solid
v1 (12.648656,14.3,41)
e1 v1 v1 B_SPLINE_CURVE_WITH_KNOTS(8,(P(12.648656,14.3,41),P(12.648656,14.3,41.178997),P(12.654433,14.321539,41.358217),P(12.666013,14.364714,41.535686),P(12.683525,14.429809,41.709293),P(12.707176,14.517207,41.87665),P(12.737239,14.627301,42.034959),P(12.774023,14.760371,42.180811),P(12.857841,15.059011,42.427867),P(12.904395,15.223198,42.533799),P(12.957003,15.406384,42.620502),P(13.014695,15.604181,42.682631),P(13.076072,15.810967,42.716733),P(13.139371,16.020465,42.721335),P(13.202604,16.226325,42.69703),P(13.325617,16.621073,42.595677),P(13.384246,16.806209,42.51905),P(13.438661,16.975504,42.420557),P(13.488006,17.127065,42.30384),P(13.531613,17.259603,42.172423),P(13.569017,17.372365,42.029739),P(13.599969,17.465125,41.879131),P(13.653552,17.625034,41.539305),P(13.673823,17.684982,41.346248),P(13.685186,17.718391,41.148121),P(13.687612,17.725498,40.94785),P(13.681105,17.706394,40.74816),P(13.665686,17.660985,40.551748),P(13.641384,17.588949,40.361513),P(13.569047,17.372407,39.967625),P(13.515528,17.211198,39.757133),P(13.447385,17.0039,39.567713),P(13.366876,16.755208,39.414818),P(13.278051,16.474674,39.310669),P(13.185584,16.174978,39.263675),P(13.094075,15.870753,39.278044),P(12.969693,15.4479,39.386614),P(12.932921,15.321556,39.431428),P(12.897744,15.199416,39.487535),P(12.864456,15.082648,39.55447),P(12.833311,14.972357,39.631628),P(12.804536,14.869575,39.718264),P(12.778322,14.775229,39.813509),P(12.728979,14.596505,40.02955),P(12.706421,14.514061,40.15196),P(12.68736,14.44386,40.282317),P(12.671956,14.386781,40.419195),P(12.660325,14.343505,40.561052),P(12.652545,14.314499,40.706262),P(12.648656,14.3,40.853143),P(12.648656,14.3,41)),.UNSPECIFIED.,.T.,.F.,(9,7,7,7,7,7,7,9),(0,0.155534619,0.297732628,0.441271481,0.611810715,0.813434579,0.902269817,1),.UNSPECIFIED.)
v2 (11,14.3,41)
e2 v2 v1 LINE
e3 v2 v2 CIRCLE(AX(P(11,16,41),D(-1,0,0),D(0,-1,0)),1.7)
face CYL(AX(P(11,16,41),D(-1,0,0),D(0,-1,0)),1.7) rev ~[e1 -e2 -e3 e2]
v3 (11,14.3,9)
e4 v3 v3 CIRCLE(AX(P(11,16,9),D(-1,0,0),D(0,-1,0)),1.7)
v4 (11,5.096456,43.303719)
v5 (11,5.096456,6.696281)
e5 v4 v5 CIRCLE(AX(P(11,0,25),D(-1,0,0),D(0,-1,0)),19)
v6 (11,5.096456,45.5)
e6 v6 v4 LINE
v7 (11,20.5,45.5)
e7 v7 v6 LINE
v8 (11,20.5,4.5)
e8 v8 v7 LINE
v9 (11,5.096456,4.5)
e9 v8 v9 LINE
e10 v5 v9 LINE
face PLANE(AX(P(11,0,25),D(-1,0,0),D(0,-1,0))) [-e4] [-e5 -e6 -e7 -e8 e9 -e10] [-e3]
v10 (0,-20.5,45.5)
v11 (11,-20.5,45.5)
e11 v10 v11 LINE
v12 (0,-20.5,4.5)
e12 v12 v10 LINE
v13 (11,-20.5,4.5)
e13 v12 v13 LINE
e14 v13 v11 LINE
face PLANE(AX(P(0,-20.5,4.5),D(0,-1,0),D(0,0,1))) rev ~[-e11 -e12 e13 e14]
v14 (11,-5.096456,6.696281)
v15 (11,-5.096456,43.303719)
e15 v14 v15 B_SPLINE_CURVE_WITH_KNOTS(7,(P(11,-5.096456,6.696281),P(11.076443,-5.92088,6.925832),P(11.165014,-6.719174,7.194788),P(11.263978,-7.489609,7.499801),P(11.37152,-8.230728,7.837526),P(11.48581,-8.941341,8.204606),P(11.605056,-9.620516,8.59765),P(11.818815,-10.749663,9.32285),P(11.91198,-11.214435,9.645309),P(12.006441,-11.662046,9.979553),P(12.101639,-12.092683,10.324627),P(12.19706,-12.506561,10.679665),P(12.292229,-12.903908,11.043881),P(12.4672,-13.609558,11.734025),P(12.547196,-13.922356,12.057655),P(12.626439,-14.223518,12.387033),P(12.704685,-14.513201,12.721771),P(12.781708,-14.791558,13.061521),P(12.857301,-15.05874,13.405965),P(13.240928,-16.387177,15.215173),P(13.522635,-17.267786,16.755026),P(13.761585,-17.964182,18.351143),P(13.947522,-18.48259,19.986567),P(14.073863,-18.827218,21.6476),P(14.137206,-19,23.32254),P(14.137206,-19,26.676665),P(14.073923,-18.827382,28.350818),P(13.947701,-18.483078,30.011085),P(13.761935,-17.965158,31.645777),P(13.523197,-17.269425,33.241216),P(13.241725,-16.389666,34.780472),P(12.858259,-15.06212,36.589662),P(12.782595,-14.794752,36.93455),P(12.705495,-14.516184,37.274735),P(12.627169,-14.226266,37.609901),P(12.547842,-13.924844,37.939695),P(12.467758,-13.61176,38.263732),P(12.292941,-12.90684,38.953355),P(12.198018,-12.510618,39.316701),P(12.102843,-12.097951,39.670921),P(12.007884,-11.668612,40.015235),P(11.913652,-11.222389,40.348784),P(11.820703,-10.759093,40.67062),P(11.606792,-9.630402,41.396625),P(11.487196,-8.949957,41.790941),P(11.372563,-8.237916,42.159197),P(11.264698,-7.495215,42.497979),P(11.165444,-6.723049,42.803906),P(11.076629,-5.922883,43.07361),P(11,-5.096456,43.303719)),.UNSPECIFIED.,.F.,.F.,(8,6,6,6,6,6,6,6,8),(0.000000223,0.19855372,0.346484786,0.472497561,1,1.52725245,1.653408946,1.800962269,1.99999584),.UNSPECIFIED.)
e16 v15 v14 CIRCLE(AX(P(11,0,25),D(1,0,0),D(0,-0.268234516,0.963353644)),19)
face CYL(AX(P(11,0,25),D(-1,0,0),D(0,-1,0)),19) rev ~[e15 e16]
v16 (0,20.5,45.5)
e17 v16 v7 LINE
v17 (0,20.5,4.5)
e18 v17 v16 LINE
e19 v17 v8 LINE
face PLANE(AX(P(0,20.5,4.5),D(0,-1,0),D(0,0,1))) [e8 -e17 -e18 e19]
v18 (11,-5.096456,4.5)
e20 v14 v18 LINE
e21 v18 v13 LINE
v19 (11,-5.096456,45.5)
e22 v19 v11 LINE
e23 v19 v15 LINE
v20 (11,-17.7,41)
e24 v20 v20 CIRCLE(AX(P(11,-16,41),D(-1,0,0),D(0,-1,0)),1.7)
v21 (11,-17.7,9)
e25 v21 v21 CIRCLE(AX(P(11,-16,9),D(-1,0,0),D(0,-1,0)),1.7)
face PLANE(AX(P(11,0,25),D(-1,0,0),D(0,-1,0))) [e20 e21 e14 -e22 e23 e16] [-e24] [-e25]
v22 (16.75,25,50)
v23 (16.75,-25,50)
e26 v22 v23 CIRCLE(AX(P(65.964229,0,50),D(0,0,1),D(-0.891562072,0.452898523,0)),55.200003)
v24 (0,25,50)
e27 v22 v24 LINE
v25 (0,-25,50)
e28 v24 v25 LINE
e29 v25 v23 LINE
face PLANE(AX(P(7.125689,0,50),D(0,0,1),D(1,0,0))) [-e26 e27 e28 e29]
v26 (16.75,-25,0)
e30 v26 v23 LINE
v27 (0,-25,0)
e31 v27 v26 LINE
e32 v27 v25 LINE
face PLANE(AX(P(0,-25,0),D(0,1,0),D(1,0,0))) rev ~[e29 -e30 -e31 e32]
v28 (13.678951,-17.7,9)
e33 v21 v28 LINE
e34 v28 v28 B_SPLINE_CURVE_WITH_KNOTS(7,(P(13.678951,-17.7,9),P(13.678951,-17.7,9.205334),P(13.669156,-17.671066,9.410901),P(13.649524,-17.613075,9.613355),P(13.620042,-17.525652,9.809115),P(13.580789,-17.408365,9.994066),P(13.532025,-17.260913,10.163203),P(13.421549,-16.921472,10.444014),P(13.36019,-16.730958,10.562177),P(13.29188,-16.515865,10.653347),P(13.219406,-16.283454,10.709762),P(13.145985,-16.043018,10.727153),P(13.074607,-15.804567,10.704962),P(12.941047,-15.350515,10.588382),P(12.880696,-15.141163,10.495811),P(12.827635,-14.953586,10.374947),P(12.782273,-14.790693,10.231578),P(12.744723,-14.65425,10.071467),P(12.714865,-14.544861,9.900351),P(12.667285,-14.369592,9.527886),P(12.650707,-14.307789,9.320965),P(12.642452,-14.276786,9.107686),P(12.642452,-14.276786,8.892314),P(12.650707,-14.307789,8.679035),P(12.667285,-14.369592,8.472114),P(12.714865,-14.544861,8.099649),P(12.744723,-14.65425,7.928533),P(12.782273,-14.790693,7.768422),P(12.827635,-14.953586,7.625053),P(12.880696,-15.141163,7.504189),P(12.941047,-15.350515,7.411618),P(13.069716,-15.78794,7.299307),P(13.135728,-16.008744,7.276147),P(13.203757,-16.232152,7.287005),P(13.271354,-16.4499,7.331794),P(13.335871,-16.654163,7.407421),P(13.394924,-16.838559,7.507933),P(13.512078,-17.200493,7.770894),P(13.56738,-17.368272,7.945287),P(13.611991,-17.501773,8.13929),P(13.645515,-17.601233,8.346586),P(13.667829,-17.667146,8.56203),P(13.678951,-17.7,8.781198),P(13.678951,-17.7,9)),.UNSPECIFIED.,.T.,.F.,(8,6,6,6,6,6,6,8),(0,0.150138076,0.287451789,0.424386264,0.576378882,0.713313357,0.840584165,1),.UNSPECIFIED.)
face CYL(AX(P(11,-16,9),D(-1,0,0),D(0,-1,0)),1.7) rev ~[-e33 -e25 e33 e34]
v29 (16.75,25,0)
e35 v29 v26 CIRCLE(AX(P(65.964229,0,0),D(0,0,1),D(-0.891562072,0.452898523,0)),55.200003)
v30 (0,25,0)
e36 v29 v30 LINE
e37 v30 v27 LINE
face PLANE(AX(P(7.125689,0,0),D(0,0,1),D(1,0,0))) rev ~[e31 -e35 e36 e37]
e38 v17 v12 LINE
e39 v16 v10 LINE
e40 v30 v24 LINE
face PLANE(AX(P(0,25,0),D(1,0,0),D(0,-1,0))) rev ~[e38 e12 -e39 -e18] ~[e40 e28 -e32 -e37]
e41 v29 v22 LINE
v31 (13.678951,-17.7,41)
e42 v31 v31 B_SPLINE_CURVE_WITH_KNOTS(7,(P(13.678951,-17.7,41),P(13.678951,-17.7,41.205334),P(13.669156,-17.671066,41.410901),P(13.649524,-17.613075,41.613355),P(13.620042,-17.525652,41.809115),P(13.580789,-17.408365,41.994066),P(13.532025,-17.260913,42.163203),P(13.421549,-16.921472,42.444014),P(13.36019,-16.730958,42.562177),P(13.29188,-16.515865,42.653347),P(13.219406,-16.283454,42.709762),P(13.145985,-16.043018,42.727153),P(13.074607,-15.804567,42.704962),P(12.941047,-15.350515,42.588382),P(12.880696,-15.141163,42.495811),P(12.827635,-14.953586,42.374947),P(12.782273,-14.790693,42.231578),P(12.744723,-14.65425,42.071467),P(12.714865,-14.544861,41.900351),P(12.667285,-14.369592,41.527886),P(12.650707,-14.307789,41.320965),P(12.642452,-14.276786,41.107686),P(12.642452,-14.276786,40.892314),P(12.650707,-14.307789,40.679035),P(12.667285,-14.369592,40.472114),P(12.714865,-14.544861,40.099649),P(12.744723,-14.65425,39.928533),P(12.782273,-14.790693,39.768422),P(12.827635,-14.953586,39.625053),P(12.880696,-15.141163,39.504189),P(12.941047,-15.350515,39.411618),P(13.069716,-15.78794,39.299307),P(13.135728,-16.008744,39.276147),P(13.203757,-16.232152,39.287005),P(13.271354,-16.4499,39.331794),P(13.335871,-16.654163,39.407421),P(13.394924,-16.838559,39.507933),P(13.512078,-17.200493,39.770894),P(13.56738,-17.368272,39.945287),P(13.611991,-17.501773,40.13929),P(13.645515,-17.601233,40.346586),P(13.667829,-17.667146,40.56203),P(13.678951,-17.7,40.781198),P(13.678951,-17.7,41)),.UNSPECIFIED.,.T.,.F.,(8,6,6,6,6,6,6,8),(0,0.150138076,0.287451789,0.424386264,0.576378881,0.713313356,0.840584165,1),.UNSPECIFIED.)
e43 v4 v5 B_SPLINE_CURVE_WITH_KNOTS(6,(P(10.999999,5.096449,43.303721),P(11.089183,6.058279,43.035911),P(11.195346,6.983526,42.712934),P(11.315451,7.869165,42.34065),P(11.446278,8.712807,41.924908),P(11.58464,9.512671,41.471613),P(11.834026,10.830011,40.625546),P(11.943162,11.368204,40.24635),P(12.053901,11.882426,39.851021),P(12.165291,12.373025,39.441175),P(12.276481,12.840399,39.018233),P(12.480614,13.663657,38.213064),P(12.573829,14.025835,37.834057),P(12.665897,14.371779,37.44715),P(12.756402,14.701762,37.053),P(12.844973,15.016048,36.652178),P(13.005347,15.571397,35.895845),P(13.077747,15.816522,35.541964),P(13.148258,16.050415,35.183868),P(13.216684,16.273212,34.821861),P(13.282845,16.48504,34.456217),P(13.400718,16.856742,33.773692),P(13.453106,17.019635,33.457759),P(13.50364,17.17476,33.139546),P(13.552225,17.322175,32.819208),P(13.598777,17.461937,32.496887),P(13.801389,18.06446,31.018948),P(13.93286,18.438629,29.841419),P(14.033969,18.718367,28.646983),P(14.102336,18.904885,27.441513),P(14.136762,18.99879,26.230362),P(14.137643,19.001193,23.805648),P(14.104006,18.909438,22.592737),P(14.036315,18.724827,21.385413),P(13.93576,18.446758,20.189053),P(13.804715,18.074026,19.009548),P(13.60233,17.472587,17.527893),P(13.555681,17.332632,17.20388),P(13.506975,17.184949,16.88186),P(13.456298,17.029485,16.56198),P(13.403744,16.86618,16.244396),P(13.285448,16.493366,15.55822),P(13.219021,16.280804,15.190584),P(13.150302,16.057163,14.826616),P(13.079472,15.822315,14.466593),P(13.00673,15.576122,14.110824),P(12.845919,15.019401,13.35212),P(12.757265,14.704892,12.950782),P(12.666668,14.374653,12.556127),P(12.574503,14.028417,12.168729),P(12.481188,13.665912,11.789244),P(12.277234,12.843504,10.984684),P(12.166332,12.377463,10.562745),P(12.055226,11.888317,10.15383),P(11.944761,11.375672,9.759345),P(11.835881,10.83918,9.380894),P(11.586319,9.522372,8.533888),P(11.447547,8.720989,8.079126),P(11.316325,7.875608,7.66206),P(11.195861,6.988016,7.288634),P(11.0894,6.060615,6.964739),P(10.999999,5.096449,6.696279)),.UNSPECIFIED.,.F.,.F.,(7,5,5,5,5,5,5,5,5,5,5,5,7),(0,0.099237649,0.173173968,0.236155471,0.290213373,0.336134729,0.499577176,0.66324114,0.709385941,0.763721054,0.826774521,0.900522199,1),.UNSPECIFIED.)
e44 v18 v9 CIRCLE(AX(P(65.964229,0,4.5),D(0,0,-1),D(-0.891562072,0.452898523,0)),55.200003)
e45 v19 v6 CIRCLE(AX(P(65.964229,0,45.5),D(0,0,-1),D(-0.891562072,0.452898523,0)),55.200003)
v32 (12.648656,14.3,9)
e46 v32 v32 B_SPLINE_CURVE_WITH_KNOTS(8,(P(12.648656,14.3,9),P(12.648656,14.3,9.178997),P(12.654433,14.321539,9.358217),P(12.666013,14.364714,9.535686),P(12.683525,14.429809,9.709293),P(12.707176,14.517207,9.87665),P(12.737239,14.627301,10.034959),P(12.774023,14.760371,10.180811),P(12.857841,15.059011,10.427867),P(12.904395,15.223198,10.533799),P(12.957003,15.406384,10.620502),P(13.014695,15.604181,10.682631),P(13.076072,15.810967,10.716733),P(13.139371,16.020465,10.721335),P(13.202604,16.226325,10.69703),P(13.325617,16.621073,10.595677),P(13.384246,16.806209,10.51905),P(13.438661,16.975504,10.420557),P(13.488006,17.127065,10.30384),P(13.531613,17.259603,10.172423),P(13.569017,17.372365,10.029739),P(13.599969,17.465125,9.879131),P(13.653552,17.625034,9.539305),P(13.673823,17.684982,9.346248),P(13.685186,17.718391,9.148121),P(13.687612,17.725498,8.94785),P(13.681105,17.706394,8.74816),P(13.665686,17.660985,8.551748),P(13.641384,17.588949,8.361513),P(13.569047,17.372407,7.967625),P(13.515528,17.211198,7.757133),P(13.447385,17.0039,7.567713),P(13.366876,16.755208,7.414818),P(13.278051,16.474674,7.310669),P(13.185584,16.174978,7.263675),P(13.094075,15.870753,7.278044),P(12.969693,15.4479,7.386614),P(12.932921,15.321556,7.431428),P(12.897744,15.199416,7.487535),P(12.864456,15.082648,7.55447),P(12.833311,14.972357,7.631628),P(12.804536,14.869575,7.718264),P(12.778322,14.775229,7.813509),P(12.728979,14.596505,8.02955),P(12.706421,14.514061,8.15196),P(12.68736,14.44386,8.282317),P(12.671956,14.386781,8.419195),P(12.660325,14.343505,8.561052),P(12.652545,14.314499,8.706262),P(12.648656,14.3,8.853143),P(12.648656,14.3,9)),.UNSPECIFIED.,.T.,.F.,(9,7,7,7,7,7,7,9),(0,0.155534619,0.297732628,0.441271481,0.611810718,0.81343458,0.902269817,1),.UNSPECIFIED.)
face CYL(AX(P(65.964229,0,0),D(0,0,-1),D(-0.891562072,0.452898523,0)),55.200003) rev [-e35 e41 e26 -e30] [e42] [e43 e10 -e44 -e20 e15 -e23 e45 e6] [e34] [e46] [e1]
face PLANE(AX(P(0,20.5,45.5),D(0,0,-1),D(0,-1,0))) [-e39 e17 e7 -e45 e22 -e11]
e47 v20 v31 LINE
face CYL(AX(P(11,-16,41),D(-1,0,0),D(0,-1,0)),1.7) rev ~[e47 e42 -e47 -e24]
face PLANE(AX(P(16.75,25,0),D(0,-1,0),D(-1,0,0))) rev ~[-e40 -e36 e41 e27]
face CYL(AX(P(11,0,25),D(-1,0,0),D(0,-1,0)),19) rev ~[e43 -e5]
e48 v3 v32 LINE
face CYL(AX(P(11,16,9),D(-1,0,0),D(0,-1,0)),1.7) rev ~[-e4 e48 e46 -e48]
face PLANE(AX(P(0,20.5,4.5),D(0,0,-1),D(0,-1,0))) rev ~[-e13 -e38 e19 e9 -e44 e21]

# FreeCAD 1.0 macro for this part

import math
import FreeCAD as App
import Part
import Sketcher

doc = App.newDocument("Part")
body = doc.addObject("PartDesign::Body", "Body")

# Sketch on XY plane
sketch1 = body.newObject("Sketcher::SketchObject", "Sketch")
sketch1.AttachmentSupport = (doc.getObject("XY_Plane"), [""])
sketch1.MapMode = "FlatFace"
sketch1.addGeometry([
    Part.LineSegment(App.Vector(17, 25, 0), App.Vector(0, 25, 0)),
    Part.LineSegment(App.Vector(0, 25, 0), App.Vector(0, -25, 0)),
    Part.LineSegment(App.Vector(0, -25, 0), App.Vector(17, -25, 0)),
    Part.ArcOfCircle(Part.Circle(App.Vector(66, 0, 0), App.Vector(0, 0, 1), 55), math.radians(153), math.radians(207)),
], False)
sketch1.addConstraint([
    Sketcher.Constraint("Coincident", 0, 2, 1, 1),
    Sketcher.Constraint("Coincident", 1, 2, 2, 1),
    Sketcher.Constraint("Coincident", 2, 2, 3, 2),
    Sketcher.Constraint("Coincident", 3, 1, 0, 1),
    Sketcher.Constraint("Horizontal", 0),
    Sketcher.Constraint("Vertical", 1),
    Sketcher.Constraint("Horizontal", 2),
    Sketcher.Constraint("Symmetric", 0, 2, 1, 2, -1, 1),
    Sketcher.Constraint("PointOnObject", 3, 3, -1),
    Sketcher.Constraint("DistanceY", 1, 2, 1, 1, 50.0),
    Sketcher.Constraint("DistanceX", 0, 2, 0, 1, 16.75),
    Sketcher.Constraint("Radius", 3, 55.200003),
])
pad1 = body.newObject("PartDesign::Pad", "Pad")
pad1.Profile = sketch1
pad1.Length = 50

# Sketch on YZ plane
sketch2 = body.newObject("Sketcher::SketchObject", "Sketch001")
sketch2.AttachmentSupport = (doc.getObject("YZ_Plane"), [""])
sketch2.MapMode = "FlatFace"
sketch2.addGeometry([
    Part.LineSegment(App.Vector(20, 46, 0), App.Vector(20, 4, 0)),
    Part.LineSegment(App.Vector(20, 4, 0), App.Vector(-20, 4, 0)),
    Part.LineSegment(App.Vector(-20, 4, 0), App.Vector(-20, 46, 0)),
    Part.LineSegment(App.Vector(-20, 46, 0), App.Vector(20, 46, 0)),
], False)
sketch2.addConstraint([
    Sketcher.Constraint("Coincident", 0, 2, 1, 1),
    Sketcher.Constraint("Coincident", 1, 2, 2, 1),
    Sketcher.Constraint("Coincident", 2, 2, 3, 1),
    Sketcher.Constraint("Coincident", 3, 2, 0, 1),
    Sketcher.Constraint("Vertical", 0),
    Sketcher.Constraint("Horizontal", 1),
    Sketcher.Constraint("Vertical", 2),
    Sketcher.Constraint("Horizontal", 3),
    Sketcher.Constraint("Equal", 3, 0),
    Sketcher.Constraint("DistanceX", 1, 2, 1, 1, 41.0),
    Sketcher.Constraint("DistanceX", -1, 1, 0, 2, 20.5),
    Sketcher.Constraint("DistanceY", -1, 1, 0, 2, 4.5),
])
pocket1 = body.newObject("PartDesign::Pocket", "Pocket")
pocket1.Profile = sketch2
pocket1.Length = 11
pocket1.Reversed = True

# Sketch on YZ plane
sketch3 = body.newObject("Sketcher::SketchObject", "Sketch002")
sketch3.AttachmentSupport = (doc.getObject("YZ_Plane"), [""])
sketch3.MapMode = "FlatFace"
sketch3.AttachmentOffset = App.Placement(App.Vector(0, 0, 11), App.Rotation())
sketch3.addGeometry([
    Part.Circle(App.Vector(16, 41, 0), App.Vector(0, 0, 1), 1.7),  # 0
    Part.Circle(App.Vector(-16, 41, 0), App.Vector(0, 0, 1), 1.7),  # 1
    Part.Circle(App.Vector(-16, 9, 0), App.Vector(0, 0, 1), 1.7),  # 2
    Part.Circle(App.Vector(16, 9, 0), App.Vector(0, 0, 1), 1.7),  # 3
    Part.Circle(App.Vector(0, 25, 0), App.Vector(0, 0, 1), 19),  # 4
], False)
sketch3.addConstraint([
    Sketcher.Constraint("Equal", 0, 1),
    Sketcher.Constraint("Equal", 1, 2),
    Sketcher.Constraint("Equal", 2, 3),
    Sketcher.Constraint("Symmetric", 0, 3, 1, 3, -2),
    Sketcher.Constraint("Symmetric", 2, 3, 3, 3, -2),
    Sketcher.Constraint("PointOnObject", 4, 3, -2),
    Sketcher.Constraint("Vertical", 1, 3, 2, 3),
    Sketcher.Constraint("Diameter", 4, 38.0),
    Sketcher.Constraint("Diameter", 0, 3.4),
    Sketcher.Constraint("DistanceX", -1, 1, 0, 3, 16.0),
    Sketcher.Constraint("DistanceY", -1, 1, 0, 3, 41.0),
    Sketcher.Constraint("DistanceY", -1, 1, 2, 3, 9.0),
    Sketcher.Constraint("DistanceY", -1, 1, 4, 3, 25.0),
])
pocket2 = body.newObject("PartDesign::Pocket", "Pocket001")
pocket2.Profile = sketch3
pocket2.Type = "ThroughAll"
pocket2.Reversed = True

doc.recompute()
